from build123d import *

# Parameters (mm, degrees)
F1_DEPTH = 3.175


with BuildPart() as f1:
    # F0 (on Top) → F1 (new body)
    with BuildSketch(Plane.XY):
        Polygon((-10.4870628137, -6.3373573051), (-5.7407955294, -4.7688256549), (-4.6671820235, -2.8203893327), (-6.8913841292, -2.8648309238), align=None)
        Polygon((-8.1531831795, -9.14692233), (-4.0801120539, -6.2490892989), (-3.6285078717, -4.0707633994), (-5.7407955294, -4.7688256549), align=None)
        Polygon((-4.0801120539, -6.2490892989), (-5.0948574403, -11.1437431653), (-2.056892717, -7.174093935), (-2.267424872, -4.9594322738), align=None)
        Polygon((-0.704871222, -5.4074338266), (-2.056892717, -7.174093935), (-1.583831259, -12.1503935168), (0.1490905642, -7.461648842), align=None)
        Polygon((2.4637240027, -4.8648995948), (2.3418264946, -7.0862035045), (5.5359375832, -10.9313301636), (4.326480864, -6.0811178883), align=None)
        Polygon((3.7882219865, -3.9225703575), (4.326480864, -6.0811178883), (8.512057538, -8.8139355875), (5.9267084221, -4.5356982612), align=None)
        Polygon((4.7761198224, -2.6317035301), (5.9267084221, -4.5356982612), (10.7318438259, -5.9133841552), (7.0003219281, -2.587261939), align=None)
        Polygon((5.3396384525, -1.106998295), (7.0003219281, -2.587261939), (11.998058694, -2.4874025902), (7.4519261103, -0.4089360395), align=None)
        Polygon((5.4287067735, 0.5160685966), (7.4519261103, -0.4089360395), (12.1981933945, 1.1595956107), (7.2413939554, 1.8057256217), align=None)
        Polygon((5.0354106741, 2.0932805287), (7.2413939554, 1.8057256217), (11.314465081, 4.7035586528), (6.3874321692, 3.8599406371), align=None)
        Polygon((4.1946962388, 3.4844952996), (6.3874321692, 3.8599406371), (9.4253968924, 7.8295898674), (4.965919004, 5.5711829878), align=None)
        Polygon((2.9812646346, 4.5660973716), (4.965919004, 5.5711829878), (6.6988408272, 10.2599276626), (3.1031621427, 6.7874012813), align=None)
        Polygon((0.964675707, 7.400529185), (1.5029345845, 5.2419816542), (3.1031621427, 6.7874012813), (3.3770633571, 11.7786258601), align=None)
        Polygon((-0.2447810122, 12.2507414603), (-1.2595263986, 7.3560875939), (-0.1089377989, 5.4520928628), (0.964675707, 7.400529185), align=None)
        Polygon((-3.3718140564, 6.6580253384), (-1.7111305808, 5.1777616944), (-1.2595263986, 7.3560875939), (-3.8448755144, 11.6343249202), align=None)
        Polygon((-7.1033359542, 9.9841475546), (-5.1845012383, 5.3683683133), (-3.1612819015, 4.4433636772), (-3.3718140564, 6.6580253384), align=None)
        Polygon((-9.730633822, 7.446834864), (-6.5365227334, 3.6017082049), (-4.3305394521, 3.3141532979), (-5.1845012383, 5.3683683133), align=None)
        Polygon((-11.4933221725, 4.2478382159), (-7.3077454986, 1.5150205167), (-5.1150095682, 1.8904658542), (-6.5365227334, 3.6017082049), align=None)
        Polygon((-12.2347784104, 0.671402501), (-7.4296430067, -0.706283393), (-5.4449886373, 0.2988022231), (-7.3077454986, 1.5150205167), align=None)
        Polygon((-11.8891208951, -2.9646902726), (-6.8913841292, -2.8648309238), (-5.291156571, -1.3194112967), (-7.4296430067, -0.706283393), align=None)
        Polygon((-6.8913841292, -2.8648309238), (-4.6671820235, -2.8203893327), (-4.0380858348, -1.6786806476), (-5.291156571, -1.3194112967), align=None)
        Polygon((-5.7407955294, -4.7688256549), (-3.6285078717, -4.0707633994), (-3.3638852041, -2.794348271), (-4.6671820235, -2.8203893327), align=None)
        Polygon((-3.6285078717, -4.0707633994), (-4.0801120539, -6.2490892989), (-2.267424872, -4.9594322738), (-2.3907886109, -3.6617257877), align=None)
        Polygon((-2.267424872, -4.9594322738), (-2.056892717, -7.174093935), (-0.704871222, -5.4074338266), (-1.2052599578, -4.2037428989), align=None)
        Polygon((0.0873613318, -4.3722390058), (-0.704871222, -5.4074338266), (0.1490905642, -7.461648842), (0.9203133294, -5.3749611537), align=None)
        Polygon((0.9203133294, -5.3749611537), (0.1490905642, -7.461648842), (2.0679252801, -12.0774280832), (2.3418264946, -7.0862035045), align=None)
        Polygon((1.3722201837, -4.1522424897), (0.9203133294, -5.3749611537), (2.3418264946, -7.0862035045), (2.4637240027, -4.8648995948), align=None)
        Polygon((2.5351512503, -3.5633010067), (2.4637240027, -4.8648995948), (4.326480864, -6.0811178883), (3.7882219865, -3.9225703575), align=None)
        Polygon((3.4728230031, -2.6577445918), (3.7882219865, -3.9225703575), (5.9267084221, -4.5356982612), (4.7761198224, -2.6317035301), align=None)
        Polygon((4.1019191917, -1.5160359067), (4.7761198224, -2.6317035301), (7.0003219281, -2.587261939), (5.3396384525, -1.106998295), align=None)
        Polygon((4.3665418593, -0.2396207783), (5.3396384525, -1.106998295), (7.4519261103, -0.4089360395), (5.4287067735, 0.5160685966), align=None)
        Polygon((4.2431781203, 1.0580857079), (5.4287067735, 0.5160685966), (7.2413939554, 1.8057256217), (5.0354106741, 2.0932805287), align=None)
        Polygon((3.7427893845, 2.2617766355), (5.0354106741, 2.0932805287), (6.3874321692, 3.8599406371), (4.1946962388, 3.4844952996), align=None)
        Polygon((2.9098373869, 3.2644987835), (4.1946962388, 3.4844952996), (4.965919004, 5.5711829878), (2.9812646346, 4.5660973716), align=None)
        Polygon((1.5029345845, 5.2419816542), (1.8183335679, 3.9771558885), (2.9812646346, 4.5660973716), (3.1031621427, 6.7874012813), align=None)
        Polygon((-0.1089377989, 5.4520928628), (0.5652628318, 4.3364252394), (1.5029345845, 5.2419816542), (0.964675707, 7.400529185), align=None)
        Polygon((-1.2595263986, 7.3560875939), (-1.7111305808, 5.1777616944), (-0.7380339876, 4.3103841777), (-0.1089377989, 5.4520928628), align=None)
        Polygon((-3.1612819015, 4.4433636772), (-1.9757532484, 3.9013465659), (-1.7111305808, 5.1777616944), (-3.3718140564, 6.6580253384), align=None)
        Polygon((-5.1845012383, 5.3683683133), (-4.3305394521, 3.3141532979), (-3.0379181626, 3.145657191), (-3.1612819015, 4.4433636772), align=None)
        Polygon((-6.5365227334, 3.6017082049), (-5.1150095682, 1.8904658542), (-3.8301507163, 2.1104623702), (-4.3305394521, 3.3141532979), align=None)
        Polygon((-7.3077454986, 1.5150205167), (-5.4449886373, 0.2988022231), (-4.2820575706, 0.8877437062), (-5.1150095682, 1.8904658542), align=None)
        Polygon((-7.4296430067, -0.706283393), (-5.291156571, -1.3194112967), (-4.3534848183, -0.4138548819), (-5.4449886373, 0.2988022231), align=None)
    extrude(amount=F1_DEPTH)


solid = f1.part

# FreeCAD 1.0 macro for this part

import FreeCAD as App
import Part
import Sketcher
from FreeCAD import Vector
Q = App.Units.Quantity


def add_polygon(sketch, points):
    """Adds a closed chain of lines whose ends are joined by coincident constraints."""
    first, n = sketch.GeometryCount, len(points)
    for a, b in zip(points, points[1:] + points[:1]):
        sketch.addGeometry(Part.LineSegment(App.Vector(*a, 0), App.Vector(*b, 0)), False)
    for i in range(n):
        sketch.addConstraint(Sketcher.Constraint("Coincident", first + i, 2, first + (i + 1) % n, 1))

doc = App.newDocument("Part")
body = doc.addObject("PartDesign::Body", "Body")

sketch1 = body.newObject("Sketcher::SketchObject", "Sketch")
sketch1.AttachmentSupport = (doc.getObject("XY_Plane"), [""])
sketch1.MapMode = "FlatFace"
add_polygon(sketch1, [(-12.2, 0.7), (-7.4, -0.7), (-11.9, -3), (-6.9, -2.9), (-10.5, -6.3), (-5.7, -4.8), (-8.2, -9.1), (-4.1, -6.2), (-5.1, -11.1), (-2.1, -7.2), (-1.6, -12.2), (0.1, -7.5), (2.1, -12.1), (2.3, -7.1), (5.5, -10.9), (4.3, -6.1), (8.5, -8.8), (5.9, -4.5), (10.7, -5.9), (7, -2.6), (12, -2.5), (7.5, -0.4), (12.2, 1.2), (7.2, 1.8), (11.3, 4.7), (6.4, 3.9), (9.4, 7.8), (5, 5.6), (6.7, 10.3), (3.1, 6.8), (3.4, 11.8), (1, 7.4), (-0.2, 12.3), (-1.3, 7.4), (-3.8, 11.6), (-3.4, 6.7), (-7.1, 10), (-5.2, 5.4), (-9.7, 7.4), (-6.5, 3.6), (-11.5, 4.2), (-7.3, 1.5)])
add_polygon(sketch1, [(-4, -1.7), (-5.3, -1.3), (-4.4, -0.4), (-5.4, 0.3), (-4.3, 0.9), (-5.1, 1.9), (-3.8, 2.1), (-4.3, 3.3), (-3, 3.1), (-3.2, 4.4), (-2, 3.9), (-1.7, 5.2), (-0.7, 4.3), (-0.1, 5.5), (0.6, 4.3), (1.5, 5.2), (1.8, 4), (3, 4.6), (2.9, 3.3), (4.2, 3.5), (3.7, 2.3), (5, 2.1), (4.2, 1.1), (5.4, 0.5), (4.4, -0.2), (5.3, -1.1), (4.1, -1.5), (4.8, -2.6), (3.5, -2.7), (3.8, -3.9), (2.5, -3.6), (2.5, -4.9), (1.4, -4.2), (0.9, -5.4), (0.1, -4.4), (-0.7, -5.4), (-1.2, -4.2), (-2.3, -5), (-2.4, -3.7), (-3.6, -4.1), (-3.4, -2.8), (-4.7, -2.8)])
sketch1.addConstraint(Sketcher.Constraint("Parallel", 0, 17))
sketch1.addConstraint(Sketcher.Constraint("Parallel", 2, 19))
sketch1.addConstraint(Sketcher.Constraint("Parallel", 4, 21))
sketch1.addConstraint(Sketcher.Constraint("Parallel", 6, 23))
sketch1.addConstraint(Sketcher.Constraint("Parallel", 8, 25))
sketch1.addConstraint(Sketcher.Constraint("Parallel", 1, 26))
sketch1.addConstraint(Sketcher.Constraint("Parallel", 10, 27))
sketch1.addConstraint(Sketcher.Constraint("Parallel", 3, 28))
sketch1.addConstraint(Sketcher.Constraint("Parallel", 12, 29))
sketch1.addConstraint(Sketcher.Constraint("Parallel", 5, 30))
sketch1.addConstraint(Sketcher.Constraint("Parallel", 14, 31))
sketch1.addConstraint(Sketcher.Constraint("Parallel", 7, 32))
sketch1.addConstraint(Sketcher.Constraint("Parallel", 16, 33))
sketch1.addConstraint(Sketcher.Constraint("Parallel", 9, 34))
sketch1.addConstraint(Sketcher.Constraint("Parallel", 18, 35))
sketch1.addConstraint(Sketcher.Constraint("Parallel", 11, 36))
sketch1.addConstraint(Sketcher.Constraint("Parallel", 20, 37))
sketch1.addConstraint(Sketcher.Constraint("Parallel", 13, 38))
sketch1.addConstraint(Sketcher.Constraint("Parallel", 22, 39))
sketch1.addConstraint(Sketcher.Constraint("Parallel", 15, 40))
sketch1.addConstraint(Sketcher.Constraint("Parallel", 24, 41))
sketch1.addConstraint(Sketcher.Constraint("Parallel", 17, 42))
sketch1.addConstraint(Sketcher.Constraint("Parallel", 28, 43))
sketch1.addConstraint(Sketcher.Constraint("Parallel", 40, 44))
sketch1.addConstraint(Sketcher.Constraint("Parallel", 26, 45))
sketch1.addConstraint(Sketcher.Constraint("Parallel", 38, 46))
sketch1.addConstraint(Sketcher.Constraint("Parallel", 41, 47))
sketch1.addConstraint(Sketcher.Constraint("Parallel", 36, 48))
sketch1.addConstraint(Sketcher.Constraint("Parallel", 39, 49))
sketch1.addConstraint(Sketcher.Constraint("Parallel", 34, 50))
sketch1.addConstraint(Sketcher.Constraint("Parallel", 37, 51))
sketch1.addConstraint(Sketcher.Constraint("Parallel", 32, 52))
sketch1.addConstraint(Sketcher.Constraint("Parallel", 35, 53))
sketch1.addConstraint(Sketcher.Constraint("Parallel", 30, 54))
sketch1.addConstraint(Sketcher.Constraint("Parallel", 33, 55))
sketch1.addConstraint(Sketcher.Constraint("Parallel", 43, 56))
sketch1.addConstraint(Sketcher.Constraint("Parallel", 31, 57))
sketch1.addConstraint(Sketcher.Constraint("Parallel", 45, 58))
sketch1.addConstraint(Sketcher.Constraint("Parallel", 29, 59))
sketch1.addConstraint(Sketcher.Constraint("Parallel", 47, 60))
sketch1.addConstraint(Sketcher.Constraint("Parallel", 27, 61))
sketch1.addConstraint(Sketcher.Constraint("Parallel", 49, 62))
sketch1.addConstraint(Sketcher.Constraint("Parallel", 25, 63))
sketch1.addConstraint(Sketcher.Constraint("Parallel", 51, 64))
sketch1.addConstraint(Sketcher.Constraint("Parallel", 23, 65))
sketch1.addConstraint(Sketcher.Constraint("Parallel", 53, 66))
sketch1.addConstraint(Sketcher.Constraint("Parallel", 21, 67))
sketch1.addConstraint(Sketcher.Constraint("Parallel", 55, 68))
sketch1.addConstraint(Sketcher.Constraint("Parallel", 19, 69))
sketch1.addConstraint(Sketcher.Constraint("Parallel", 57, 70))
sketch1.addConstraint(Sketcher.Constraint("Parallel", 42, 71))
sketch1.addConstraint(Sketcher.Constraint("Parallel", 59, 72))
sketch1.addConstraint(Sketcher.Constraint("Parallel", 44, 73))
sketch1.addConstraint(Sketcher.Constraint("Parallel", 61, 74))
sketch1.addConstraint(Sketcher.Constraint("Parallel", 46, 75))
sketch1.addConstraint(Sketcher.Constraint("Parallel", 63, 76))
sketch1.addConstraint(Sketcher.Constraint("Parallel", 48, 77))
sketch1.addConstraint(Sketcher.Constraint("Parallel", 65, 78))
sketch1.addConstraint(Sketcher.Constraint("Parallel", 50, 79))
sketch1.addConstraint(Sketcher.Constraint("Parallel", 67, 80))
sketch1.addConstraint(Sketcher.Constraint("Parallel", 52, 81))
sketch1.addConstraint(Sketcher.Constraint("Parallel", 69, 82))
sketch1.addConstraint(Sketcher.Constraint("Parallel", 54, 83))
sketch1.addConstraint(Sketcher.Constraint("Equal", 0, 1))
sketch1.addConstraint(Sketcher.Constraint("Equal", 1, 2))
sketch1.addConstraint(Sketcher.Constraint("Equal", 2, 3))
sketch1.addConstraint(Sketcher.Constraint("Equal", 3, 4))
sketch1.addConstraint(Sketcher.Constraint("Equal", 4, 5))
sketch1.addConstraint(Sketcher.Constraint("Equal", 5, 6))
sketch1.addConstraint(Sketcher.Constraint("Equal", 6, 7))
sketch1.addConstraint(Sketcher.Constraint("Equal", 7, 8))
sketch1.addConstraint(Sketcher.Constraint("Equal", 8, 9))
sketch1.addConstraint(Sketcher.Constraint("Equal", 9, 10))
sketch1.addConstraint(Sketcher.Constraint("Equal", 10, 11))
sketch1.addConstraint(Sketcher.Constraint("Equal", 11, 12))
sketch1.addConstraint(Sketcher.Constraint("Equal", 12, 13))
sketch1.addConstraint(Sketcher.Constraint("Equal", 13, 14))
sketch1.addConstraint(Sketcher.Constraint("Equal", 14, 15))
sketch1.addConstraint(Sketcher.Constraint("Equal", 15, 16))
sketch1.addConstraint(Sketcher.Constraint("Equal", 16, 17))
sketch1.addConstraint(Sketcher.Constraint("Equal", 17, 18))
sketch1.addConstraint(Sketcher.Constraint("Equal", 18, 19))
sketch1.addConstraint(Sketcher.Constraint("Equal", 19, 20))
sketch1.addConstraint(Sketcher.Constraint("Equal", 20, 21))
sketch1.addConstraint(Sketcher.Constraint("Equal", 21, 22))
sketch1.addConstraint(Sketcher.Constraint("Equal", 22, 23))
sketch1.addConstraint(Sketcher.Constraint("Equal", 23, 24))
sketch1.addConstraint(Sketcher.Constraint("Equal", 24, 25))
sketch1.addConstraint(Sketcher.Constraint("Equal", 25, 26))
sketch1.addConstraint(Sketcher.Constraint("Equal", 26, 27))
sketch1.addConstraint(Sketcher.Constraint("Equal", 27, 28))
sketch1.addConstraint(Sketcher.Constraint("Equal", 28, 29))
sketch1.addConstraint(Sketcher.Constraint("Equal", 29, 30))
sketch1.addConstraint(Sketcher.Constraint("Equal", 30, 31))
sketch1.addConstraint(Sketcher.Constraint("Equal", 31, 32))
sketch1.addConstraint(Sketcher.Constraint("Equal", 32, 33))
sketch1.addConstraint(Sketcher.Constraint("Equal", 33, 34))
sketch1.addConstraint(Sketcher.Constraint("Equal", 34, 35))
sketch1.addConstraint(Sketcher.Constraint("Equal", 35, 36))
sketch1.addConstraint(Sketcher.Constraint("Equal", 36, 37))
sketch1.addConstraint(Sketcher.Constraint("Equal", 37, 38))
sketch1.addConstraint(Sketcher.Constraint("Equal", 38, 39))
sketch1.addConstraint(Sketcher.Constraint("Equal", 39, 40))
sketch1.addConstraint(Sketcher.Constraint("Equal", 40, 41))
sketch1.addConstraint(Sketcher.Constraint("Equal", 42, 43))
sketch1.addConstraint(Sketcher.Constraint("Equal", 43, 44))
sketch1.addConstraint(Sketcher.Constraint("Equal", 44, 45))
sketch1.addConstraint(Sketcher.Constraint("Equal", 45, 46))
sketch1.addConstraint(Sketcher.Constraint("Equal", 46, 47))
sketch1.addConstraint(Sketcher.Constraint("Equal", 47, 48))
sketch1.addConstraint(Sketcher.Constraint("Equal", 48, 49))
sketch1.addConstraint(Sketcher.Constraint("Equal", 49, 50))
sketch1.addConstraint(Sketcher.Constraint("Equal", 50, 51))
sketch1.addConstraint(Sketcher.Constraint("Equal", 51, 52))
sketch1.addConstraint(Sketcher.Constraint("Equal", 52, 53))
sketch1.addConstraint(Sketcher.Constraint("Equal", 53, 54))
sketch1.addConstraint(Sketcher.Constraint("Equal", 54, 55))
sketch1.addConstraint(Sketcher.Constraint("Equal", 55, 56))
sketch1.addConstraint(Sketcher.Constraint("Equal", 56, 57))
sketch1.addConstraint(Sketcher.Constraint("Equal", 57, 58))
sketch1.addConstraint(Sketcher.Constraint("Equal", 58, 59))
sketch1.addConstraint(Sketcher.Constraint("Equal", 59, 60))
sketch1.addConstraint(Sketcher.Constraint("Equal", 60, 61))
sketch1.addConstraint(Sketcher.Constraint("Equal", 61, 62))
sketch1.addConstraint(Sketcher.Constraint("Equal", 62, 63))
sketch1.addConstraint(Sketcher.Constraint("Equal", 63, 64))
sketch1.addConstraint(Sketcher.Constraint("Equal", 64, 65))
sketch1.addConstraint(Sketcher.Constraint("Equal", 65, 66))
sketch1.addConstraint(Sketcher.Constraint("Equal", 66, 67))
sketch1.addConstraint(Sketcher.Constraint("Equal", 67, 68))
sketch1.addConstraint(Sketcher.Constraint("Equal", 68, 69))
sketch1.addConstraint(Sketcher.Constraint("Equal", 69, 70))
sketch1.addConstraint(Sketcher.Constraint("Equal", 70, 71))
sketch1.addConstraint(Sketcher.Constraint("Equal", 71, 72))
sketch1.addConstraint(Sketcher.Constraint("Equal", 72, 73))
sketch1.addConstraint(Sketcher.Constraint("Equal", 73, 74))
sketch1.addConstraint(Sketcher.Constraint("Equal", 74, 75))
sketch1.addConstraint(Sketcher.Constraint("Equal", 75, 76))
sketch1.addConstraint(Sketcher.Constraint("Equal", 76, 77))
sketch1.addConstraint(Sketcher.Constraint("Equal", 77, 78))
sketch1.addConstraint(Sketcher.Constraint("Equal", 78, 79))
sketch1.addConstraint(Sketcher.Constraint("Equal", 79, 80))
sketch1.addConstraint(Sketcher.Constraint("Equal", 80, 81))
sketch1.addConstraint(Sketcher.Constraint("DistanceY", 20, 2, -1, 1, Q("0.0160998 in")))
sketch1.addConstraint(Sketcher.Constraint("DistanceY", -1, 1, 53, 2, Q("0.1697002 in")))
sketch1.addConstraint(Sketcher.Constraint("DistanceY", 16, 2, -1, 1, 4.535698))
sketch1.addConstraint(Sketcher.Constraint("DistanceY", -1, 1, 28, 2, 6.787401))
sketch1.addConstraint(Sketcher.Constraint("DistanceX", 36, 2, -1, 1, 5.184501))
sketch1.addConstraint(Sketcher.Constraint("DistanceY", -1, 1, 59, 2, 3.264499))
sketch1.addConstraint(Sketcher.Constraint("DistanceY", 66, 2, -1, 1, 1.106998))
sketch1.addConstraint(Sketcher.Constraint("DistanceY", 71, 2, -1, 1, 3.563301))
sketch1.addConstraint(Sketcher.Constraint("DistanceY", 72, 2, -1, 1, 4.8649))
sketch1.addConstraint(Sketcher.Constraint("DistanceX", 1, 2, -1, 1, 11.889121))
sketch1.addConstraint(Sketcher.Constraint("DistanceY", 1, 2, -1, 1, 2.96469))
sketch1.addConstraint(Sketcher.Constraint("DistanceY", 2, 2, -1, 1, 2.864831))
sketch1.addConstraint(Sketcher.Constraint("DistanceY", 6, 2, -1, 1, 6.249089))
sketch1.addConstraint(Sketcher.Constraint("DistanceX", 9, 2, -1, 1, 1.583831))
sketch1.addConstraint(Sketcher.Constraint("DistanceX", -1, 1, 10, 2, 0.149091))
sketch1.addConstraint(Sketcher.Constraint("DistanceY", 10, 2, -1, 1, 7.461649))
sketch1.addConstraint(Sketcher.Constraint("DistanceY", 11, 2, -1, 1, 12.077428))
sketch1.addConstraint(Sketcher.Constraint("DistanceY", 13, 2, -1, 1, 10.93133))
sketch1.addConstraint(Sketcher.Constraint("DistanceX", -1, 1, 14, 2, 4.326481))
sketch1.addConstraint(Sketcher.Constraint("DistanceX", -1, 1, 16, 2, 5.926708))
sketch1.addConstraint(Sketcher.Constraint("DistanceX", -1, 1, 18, 2, 7.000322))
sketch1.addConstraint(Sketcher.Constraint("DistanceY", 18, 2, -1, 1, 2.587262))
sketch1.addConstraint(Sketcher.Constraint("DistanceX", -1, 1, 19, 2, 11.998059))
sketch1.addConstraint(Sketcher.Constraint("DistanceY", -1, 1, 23, 2, 4.703559))
sketch1.addConstraint(Sketcher.Constraint("DistanceX", 44, 2, -1, 1, 5.444989))
pad1 = body.newObject("PartDesign::Pad", "Pad")
pad1.Profile = sketch1
pad1.Length = Q("0.125 in")

doc.recompute()
